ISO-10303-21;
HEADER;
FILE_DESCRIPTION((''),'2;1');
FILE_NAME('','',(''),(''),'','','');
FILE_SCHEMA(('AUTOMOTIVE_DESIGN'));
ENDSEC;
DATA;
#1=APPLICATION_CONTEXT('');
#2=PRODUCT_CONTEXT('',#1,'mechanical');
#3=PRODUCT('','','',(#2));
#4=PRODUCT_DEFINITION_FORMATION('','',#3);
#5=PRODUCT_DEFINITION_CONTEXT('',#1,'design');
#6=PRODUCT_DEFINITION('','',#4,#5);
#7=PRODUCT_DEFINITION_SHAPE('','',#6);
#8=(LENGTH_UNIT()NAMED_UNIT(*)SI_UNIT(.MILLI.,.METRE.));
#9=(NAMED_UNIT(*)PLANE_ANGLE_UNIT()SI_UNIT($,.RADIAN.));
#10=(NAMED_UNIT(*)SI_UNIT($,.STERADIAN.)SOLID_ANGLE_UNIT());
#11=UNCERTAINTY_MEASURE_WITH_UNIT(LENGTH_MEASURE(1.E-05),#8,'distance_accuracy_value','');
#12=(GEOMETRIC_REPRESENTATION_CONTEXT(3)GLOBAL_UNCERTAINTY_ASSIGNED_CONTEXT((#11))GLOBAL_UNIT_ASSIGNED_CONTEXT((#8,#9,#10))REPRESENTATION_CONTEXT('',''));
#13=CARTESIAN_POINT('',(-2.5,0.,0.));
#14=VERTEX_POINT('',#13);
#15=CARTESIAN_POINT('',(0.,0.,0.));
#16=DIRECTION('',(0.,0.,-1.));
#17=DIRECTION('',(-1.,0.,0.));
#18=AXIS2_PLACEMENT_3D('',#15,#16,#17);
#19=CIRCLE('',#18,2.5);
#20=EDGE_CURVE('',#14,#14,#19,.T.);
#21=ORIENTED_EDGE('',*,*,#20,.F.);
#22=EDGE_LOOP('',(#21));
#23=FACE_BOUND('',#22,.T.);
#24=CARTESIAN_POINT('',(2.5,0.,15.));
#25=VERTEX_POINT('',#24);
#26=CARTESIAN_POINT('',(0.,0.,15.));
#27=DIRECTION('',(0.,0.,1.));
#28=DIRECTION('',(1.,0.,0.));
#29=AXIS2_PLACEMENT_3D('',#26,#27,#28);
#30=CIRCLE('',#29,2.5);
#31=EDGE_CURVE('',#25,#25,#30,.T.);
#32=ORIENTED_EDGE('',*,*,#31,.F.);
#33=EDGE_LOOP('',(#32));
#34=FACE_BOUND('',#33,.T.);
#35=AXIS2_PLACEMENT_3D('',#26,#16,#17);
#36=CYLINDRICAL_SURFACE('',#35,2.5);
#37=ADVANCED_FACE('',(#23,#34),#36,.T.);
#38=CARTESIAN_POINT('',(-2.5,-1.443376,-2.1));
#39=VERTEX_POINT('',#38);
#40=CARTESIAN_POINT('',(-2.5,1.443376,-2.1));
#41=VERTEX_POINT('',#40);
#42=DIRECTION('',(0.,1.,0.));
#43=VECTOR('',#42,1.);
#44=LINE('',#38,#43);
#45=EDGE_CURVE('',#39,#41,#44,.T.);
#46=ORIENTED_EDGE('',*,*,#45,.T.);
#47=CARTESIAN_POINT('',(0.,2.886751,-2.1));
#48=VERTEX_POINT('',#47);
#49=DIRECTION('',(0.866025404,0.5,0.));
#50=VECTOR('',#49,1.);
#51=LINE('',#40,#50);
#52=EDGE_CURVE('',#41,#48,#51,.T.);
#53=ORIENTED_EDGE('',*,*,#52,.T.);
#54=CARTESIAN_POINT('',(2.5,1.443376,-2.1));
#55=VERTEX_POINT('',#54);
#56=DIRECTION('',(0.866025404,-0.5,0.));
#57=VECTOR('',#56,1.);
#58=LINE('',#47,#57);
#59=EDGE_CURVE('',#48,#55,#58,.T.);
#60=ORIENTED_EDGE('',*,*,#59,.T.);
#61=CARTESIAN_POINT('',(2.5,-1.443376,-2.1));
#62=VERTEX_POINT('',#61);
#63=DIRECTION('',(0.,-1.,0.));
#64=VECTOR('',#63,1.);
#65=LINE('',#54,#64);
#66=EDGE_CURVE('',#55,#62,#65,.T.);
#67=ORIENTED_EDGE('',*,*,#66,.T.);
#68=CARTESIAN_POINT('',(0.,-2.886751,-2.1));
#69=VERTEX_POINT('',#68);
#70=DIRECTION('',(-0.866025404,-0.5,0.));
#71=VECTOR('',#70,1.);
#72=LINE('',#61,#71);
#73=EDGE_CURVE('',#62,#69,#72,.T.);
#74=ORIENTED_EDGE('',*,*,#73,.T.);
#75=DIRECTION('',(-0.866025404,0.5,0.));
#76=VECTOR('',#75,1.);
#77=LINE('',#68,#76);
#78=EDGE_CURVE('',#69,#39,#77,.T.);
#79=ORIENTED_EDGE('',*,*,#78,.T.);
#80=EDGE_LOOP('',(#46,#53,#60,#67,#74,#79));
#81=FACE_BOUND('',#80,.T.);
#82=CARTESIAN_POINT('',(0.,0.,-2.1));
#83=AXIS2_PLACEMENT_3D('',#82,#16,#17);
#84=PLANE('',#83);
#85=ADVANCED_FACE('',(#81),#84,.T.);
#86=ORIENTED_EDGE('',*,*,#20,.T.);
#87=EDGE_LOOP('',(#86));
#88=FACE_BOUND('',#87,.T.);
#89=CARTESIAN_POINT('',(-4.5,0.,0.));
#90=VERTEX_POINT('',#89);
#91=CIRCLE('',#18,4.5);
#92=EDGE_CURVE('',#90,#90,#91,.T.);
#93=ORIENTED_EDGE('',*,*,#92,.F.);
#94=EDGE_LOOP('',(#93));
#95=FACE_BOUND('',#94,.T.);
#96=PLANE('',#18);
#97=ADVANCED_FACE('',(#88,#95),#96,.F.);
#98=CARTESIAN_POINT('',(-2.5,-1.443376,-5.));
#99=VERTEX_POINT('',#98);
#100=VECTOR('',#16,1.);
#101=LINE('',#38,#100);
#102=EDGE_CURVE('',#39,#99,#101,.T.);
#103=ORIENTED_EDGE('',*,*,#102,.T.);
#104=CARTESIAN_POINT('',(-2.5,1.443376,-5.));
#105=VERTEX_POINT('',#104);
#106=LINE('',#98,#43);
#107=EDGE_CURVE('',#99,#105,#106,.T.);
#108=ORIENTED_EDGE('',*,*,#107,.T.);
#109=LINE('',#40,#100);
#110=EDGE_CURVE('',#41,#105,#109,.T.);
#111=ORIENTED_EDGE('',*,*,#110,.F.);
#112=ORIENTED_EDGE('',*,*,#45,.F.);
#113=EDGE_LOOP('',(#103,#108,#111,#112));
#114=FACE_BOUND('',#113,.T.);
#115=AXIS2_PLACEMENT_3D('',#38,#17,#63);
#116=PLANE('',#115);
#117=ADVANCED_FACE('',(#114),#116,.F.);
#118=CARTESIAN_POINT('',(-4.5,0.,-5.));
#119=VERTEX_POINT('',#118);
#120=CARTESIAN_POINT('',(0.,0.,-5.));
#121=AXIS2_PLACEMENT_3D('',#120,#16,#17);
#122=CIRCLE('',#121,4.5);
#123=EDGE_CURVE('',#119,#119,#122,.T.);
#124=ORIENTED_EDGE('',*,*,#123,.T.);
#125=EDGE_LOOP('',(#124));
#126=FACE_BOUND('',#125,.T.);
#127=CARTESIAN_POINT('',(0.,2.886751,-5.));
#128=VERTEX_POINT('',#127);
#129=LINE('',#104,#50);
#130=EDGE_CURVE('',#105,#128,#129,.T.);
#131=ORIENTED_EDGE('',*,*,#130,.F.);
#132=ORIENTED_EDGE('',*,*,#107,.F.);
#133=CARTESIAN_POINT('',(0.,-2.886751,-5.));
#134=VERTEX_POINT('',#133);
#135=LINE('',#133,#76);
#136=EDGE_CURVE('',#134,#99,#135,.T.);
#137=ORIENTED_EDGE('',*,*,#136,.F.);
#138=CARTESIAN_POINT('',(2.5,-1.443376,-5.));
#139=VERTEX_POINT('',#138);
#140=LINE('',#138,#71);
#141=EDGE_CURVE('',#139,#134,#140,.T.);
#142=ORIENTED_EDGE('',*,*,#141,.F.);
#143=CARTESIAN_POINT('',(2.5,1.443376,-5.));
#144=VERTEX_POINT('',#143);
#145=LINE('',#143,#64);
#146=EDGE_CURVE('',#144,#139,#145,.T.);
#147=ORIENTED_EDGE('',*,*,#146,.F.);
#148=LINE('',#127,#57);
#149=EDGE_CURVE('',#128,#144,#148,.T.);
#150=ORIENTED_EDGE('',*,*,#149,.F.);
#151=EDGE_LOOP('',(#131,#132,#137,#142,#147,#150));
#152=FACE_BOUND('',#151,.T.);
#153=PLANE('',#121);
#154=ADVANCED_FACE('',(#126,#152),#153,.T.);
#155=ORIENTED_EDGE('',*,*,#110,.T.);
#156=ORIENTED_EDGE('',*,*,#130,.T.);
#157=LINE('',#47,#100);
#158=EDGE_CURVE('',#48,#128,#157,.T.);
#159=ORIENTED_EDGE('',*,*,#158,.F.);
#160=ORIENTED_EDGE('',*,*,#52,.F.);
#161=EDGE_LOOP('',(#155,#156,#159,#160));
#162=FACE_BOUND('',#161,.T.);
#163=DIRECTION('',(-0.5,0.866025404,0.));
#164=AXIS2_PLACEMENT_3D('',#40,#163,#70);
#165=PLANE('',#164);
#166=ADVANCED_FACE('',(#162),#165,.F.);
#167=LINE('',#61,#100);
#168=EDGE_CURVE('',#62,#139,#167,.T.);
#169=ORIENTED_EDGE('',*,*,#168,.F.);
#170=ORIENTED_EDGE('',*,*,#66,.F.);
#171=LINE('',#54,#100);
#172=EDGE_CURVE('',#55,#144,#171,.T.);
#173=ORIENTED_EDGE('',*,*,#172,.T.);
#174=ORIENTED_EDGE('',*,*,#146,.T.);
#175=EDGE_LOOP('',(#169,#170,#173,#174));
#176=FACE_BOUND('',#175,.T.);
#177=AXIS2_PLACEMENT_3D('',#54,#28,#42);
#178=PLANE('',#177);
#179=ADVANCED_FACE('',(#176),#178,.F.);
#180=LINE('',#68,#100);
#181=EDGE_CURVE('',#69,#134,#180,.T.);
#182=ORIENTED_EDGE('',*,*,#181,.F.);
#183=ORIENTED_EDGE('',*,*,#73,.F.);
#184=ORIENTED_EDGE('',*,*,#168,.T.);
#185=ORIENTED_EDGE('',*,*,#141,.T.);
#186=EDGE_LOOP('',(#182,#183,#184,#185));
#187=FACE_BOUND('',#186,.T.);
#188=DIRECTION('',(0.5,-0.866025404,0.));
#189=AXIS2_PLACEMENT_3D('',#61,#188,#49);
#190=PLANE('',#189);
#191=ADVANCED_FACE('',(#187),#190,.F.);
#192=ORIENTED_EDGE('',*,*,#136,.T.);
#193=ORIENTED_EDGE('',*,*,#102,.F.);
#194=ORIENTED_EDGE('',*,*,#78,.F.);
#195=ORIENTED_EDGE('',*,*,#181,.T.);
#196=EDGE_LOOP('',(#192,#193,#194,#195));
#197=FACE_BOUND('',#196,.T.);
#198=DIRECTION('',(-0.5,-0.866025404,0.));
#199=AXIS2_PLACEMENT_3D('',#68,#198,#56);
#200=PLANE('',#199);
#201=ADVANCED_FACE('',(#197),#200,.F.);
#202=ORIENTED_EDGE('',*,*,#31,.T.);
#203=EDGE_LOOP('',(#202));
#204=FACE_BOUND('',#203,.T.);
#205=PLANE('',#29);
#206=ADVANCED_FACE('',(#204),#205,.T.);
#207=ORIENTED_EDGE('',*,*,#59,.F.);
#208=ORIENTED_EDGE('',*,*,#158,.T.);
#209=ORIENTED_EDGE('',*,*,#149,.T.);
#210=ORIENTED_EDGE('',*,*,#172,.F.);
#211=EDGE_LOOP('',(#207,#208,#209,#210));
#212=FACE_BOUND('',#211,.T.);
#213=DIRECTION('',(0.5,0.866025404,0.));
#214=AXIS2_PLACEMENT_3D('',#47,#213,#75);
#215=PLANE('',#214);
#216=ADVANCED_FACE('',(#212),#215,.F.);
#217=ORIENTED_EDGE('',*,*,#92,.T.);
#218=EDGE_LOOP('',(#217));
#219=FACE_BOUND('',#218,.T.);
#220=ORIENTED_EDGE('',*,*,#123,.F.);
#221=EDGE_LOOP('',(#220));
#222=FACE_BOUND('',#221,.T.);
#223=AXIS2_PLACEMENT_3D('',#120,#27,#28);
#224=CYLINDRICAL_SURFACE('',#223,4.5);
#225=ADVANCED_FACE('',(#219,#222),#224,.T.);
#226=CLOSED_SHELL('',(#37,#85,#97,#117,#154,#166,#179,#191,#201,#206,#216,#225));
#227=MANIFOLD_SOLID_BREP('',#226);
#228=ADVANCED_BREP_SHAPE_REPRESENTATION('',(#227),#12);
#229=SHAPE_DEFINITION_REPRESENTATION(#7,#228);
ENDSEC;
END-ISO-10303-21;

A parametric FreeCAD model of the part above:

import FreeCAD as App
import Part
import Sketcher
from FreeCAD import Vector
Q = App.Units.Quantity

doc = App.newDocument("Part")
body = doc.addObject("PartDesign::Body", "Body")

# Sketch on XY plane
sketch1 = body.newObject("Sketcher::SketchObject", "Sketch")
sketch1.AttachmentSupport = (doc.getObject("XY_Plane"), [""])
sketch1.MapMode = "FlatFace"
sketch1.addGeometry(Part.Circle(Vector(0, 0, 0), Vector(0, 0, 1), 2.5), False)
sketch1.addConstraint([
    Sketcher.Constraint("Coincident", 0, 3, -1, 1),
    Sketcher.Constraint("Diameter", 0, 5.0),
])
pad1 = body.newObject("PartDesign::Pad", "Pad")
pad1.Profile = sketch1
pad1.Length = 15

# Sketch on XY plane
sketch2 = body.newObject("Sketcher::SketchObject", "Sketch001")
sketch2.AttachmentSupport = (doc.getObject("XY_Plane"), [""])
sketch2.MapMode = "FlatFace"
sketch2.addGeometry(Part.Circle(Vector(0, 0, 0), Vector(0, 0, 1), 4.5), False)
sketch2.addConstraint([
    Sketcher.Constraint("Coincident", 0, 3, -1, 1),
    Sketcher.Constraint("Diameter", 0, 9.0),
])
pad2 = body.newObject("PartDesign::Pad", "Pad001")
pad2.Profile = sketch2
pad2.Length = 5
pad2.Reversed = True

# Sketch on XY plane
sketch3 = body.newObject("Sketcher::SketchObject", "Sketch002")
sketch3.AttachmentSupport = (doc.getObject("XY_Plane"), [""])
sketch3.MapMode = "FlatFace"
sketch3.AttachmentOffset = App.Placement(Vector(0, 0, -5), App.Rotation())
sketch3.addGeometry([
    Part.LineSegment(Vector(0, 2.9, 0), Vector(2.5, 1.4, 0)),  # 0
    Part.LineSegment(Vector(2.5, 1.4, 0), Vector(2.5, -1.4, 0)),  # 1
    Part.LineSegment(Vector(2.5, -1.4, 0), Vector(0, -2.9, 0)),  # 2
    Part.LineSegment(Vector(0, -2.9, 0), Vector(-2.5, -1.4, 0)),  # 3
    Part.LineSegment(Vector(-2.5, -1.4, 0), Vector(-2.5, 1.4, 0)),  # 4
    Part.LineSegment(Vector(-2.5, 1.4, 0), Vector(0, 2.9, 0)),  # 5
], False)
sketch3.addConstraint([
    Sketcher.Constraint("Coincident", 0, 2, 1, 1),
    Sketcher.Constraint("Coincident", 1, 2, 2, 1),
    Sketcher.Constraint("Coincident", 2, 2, 3, 1),
    Sketcher.Constraint("Coincident", 3, 2, 4, 1),
    Sketcher.Constraint("Coincident", 4, 2, 5, 1),
    Sketcher.Constraint("Coincident", 5, 2, 0, 1),
    Sketcher.Constraint("Vertical", 1),
    Sketcher.Constraint("Vertical", 4),
    Sketcher.Constraint("Symmetric", 0, 2, 3, 2, -1, 1),
    Sketcher.Constraint("Symmetric", 2, 2, 5, 2, -1, 1),
    Sketcher.Constraint("PointOnObject", 2, 2, -2),
    Sketcher.Constraint("Parallel", 2, 5),
    Sketcher.Constraint("Horizontal", 1, 2, 3, 2),
    Sketcher.Constraint("Angle", 0, Q("-30 deg")),
    Sketcher.Constraint("DistanceX", 3, 2, 1, 2, 5.0),
    Sketcher.Constraint("DistanceY", 1, 2, 1, 1, 2.886751),
])
pocket1 = body.newObject("PartDesign::Pocket", "Pocket")
pocket1.Profile = sketch3
pocket1.Length = 2.9
pocket1.Reversed = True

doc.recompute()
